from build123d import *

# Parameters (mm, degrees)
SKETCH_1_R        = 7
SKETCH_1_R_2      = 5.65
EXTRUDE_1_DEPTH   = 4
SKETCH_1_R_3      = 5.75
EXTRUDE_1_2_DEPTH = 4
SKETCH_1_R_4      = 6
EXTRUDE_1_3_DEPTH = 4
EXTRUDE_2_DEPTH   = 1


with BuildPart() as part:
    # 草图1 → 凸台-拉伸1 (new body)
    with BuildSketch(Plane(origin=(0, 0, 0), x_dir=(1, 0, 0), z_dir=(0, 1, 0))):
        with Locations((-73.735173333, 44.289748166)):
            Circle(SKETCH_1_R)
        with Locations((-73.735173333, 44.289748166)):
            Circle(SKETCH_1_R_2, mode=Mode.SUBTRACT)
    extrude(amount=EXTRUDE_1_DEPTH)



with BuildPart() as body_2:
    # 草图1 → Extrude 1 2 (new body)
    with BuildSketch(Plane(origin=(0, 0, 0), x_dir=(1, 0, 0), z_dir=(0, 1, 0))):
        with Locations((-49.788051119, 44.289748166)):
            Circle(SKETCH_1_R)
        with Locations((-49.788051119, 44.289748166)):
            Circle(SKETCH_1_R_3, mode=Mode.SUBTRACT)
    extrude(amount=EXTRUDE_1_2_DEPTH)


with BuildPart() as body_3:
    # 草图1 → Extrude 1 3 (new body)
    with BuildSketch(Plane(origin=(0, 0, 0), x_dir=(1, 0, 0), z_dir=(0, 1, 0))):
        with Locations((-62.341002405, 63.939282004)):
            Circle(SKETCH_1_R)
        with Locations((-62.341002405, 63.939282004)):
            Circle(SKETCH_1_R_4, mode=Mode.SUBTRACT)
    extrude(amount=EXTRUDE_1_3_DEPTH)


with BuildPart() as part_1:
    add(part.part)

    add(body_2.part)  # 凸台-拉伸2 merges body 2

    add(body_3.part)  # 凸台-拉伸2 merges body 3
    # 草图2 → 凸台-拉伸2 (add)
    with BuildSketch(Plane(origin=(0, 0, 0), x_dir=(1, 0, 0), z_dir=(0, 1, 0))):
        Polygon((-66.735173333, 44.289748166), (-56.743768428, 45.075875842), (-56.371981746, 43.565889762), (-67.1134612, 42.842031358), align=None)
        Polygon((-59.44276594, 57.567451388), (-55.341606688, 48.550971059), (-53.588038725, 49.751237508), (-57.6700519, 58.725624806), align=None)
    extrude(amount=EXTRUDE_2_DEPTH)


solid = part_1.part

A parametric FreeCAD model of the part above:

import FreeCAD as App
import Part
import Sketcher

V = App.Vector

doc = App.newDocument("Part")
body = doc.addObject("PartDesign::Body", "Body")

sketch1 = body.newObject("Sketcher::SketchObject", "Sketch")
sketch1.AttachmentSupport = (doc.getObject("XZ_Plane"), [""])
sketch1.MapMode = "FlatFace"
sketch1.addGeometry([
    Part.Circle(V(-73.735173, -44.289748, 0), V(0, 0, 1), 7),
    Part.Circle(V(-73.735173, -44.289748, 0), V(0, 0, 1), 5.65),
], False)
sketch1.addConstraint([
    Sketcher.Constraint("Coincident", 1, 3, 0, 3),
    Sketcher.Constraint("Diameter", 0, 14.0),
    Sketcher.Constraint("Diameter", 1, 11.3),
    Sketcher.Constraint("DistanceY", 0, 3, -1, 1, 44.289748),
    Sketcher.Constraint("DistanceX", 0, 3, -1, 1, 73.735173),
])
pad1 = body.newObject("PartDesign::Pad", "Pad")
pad1.Profile = sketch1
pad1.Length = 4
pad1.Reversed = True
body2 = doc.addObject("PartDesign::Body", "Body001")

sketch2 = body2.newObject("Sketcher::SketchObject", "Sketch001")
sketch2.AttachmentSupport = (doc.getObject("XZ_Plane001"), [""])
sketch2.MapMode = "FlatFace"
sketch2.addGeometry([
    Part.Circle(V(-49.788051, -44.289748, 0), V(0, 0, 1), 7),
    Part.Circle(V(-49.788051, -44.289748, 0), V(0, 0, 1), 5.75),
], False)
sketch2.addConstraint([
    Sketcher.Constraint("Coincident", 1, 3, 0, 3),
    Sketcher.Constraint("Diameter", 0, 14.0),
    Sketcher.Constraint("Diameter", 1, 11.5),
    Sketcher.Constraint("DistanceX", 0, 3, -1, 1, 49.788051),
    Sketcher.Constraint("DistanceY", 0, 3, -1, 1, 44.289748),
])
pad2 = body2.newObject("PartDesign::Pad", "Pad001")
pad2.Profile = sketch2
pad2.Length = 4
pad2.Reversed = True
body3 = doc.addObject("PartDesign::Body", "Body002")

sketch3 = body3.newObject("Sketcher::SketchObject", "Sketch002")
sketch3.AttachmentSupport = (doc.getObject("XZ_Plane002"), [""])
sketch3.MapMode = "FlatFace"
sketch3.addGeometry([
    Part.Circle(V(-62.341002, -63.939282, 0), V(0, 0, 1), 7),
    Part.Circle(V(-62.341002, -63.939282, 0), V(0, 0, 1), 6),
], False)
sketch3.addConstraint([
    Sketcher.Constraint("Coincident", 1, 3, 0, 3),
    Sketcher.Constraint("Diameter", 0, 14.0),
    Sketcher.Constraint("Diameter", 1, 12.0),
    Sketcher.Constraint("DistanceX", 0, 3, -1, 1, 62.341002),
    Sketcher.Constraint("DistanceY", 0, 3, -1, 1, 63.939282),
])
pad3 = body3.newObject("PartDesign::Pad", "Pad002")
pad3.Profile = sketch3
pad3.Length = 4
pad3.Reversed = True
body.AllowCompound = True
doc.recompute()

boolean = body.newObject("PartDesign::Boolean", "Boolean")
boolean.Type = "Fuse"
boolean.addObjects([body2])
doc.recompute()

boolean2 = body.newObject("PartDesign::Boolean", "Boolean001")
boolean2.Type = "Fuse"
boolean2.addObjects([body3])

sketch4 = body.newObject("Sketcher::SketchObject", "Sketch003")
sketch4.AttachmentSupport = (doc.getObject("XZ_Plane"), [""])
sketch4.MapMode = "FlatFace"
sketch4.addGeometry([
    Part.LineSegment(V(-56.743768, -45.075876, 0), V(-66.735173, -44.289748, 0)),
    Part.LineSegment(V(-66.735173, -44.289748, 0), V(-67.113461, -42.842031, 0)),
    Part.LineSegment(V(-67.113461, -42.842031, 0), V(-56.371982, -43.56589, 0)),
    Part.LineSegment(V(-56.371982, -43.56589, 0), V(-56.743768, -45.075876, 0)),
    Part.LineSegment(V(-59.442766, -57.567451, 0), V(-55.341607, -48.550971, 0)),
    Part.LineSegment(V(-55.341607, -48.550971, 0), V(-53.588039, -49.751238, 0)),
    Part.LineSegment(V(-53.588039, -49.751238, 0), V(-57.670052, -58.725625, 0)),
    Part.LineSegment(V(-57.670052, -58.725625, 0), V(-59.442766, -57.567451, 0)),
], False)
sketch4.addConstraint([
    Sketcher.Constraint("Coincident", 0, 2, 1, 1),
    Sketcher.Constraint("Coincident", 1, 2, 2, 1),
    Sketcher.Constraint("Coincident", 2, 2, 3, 1),
    Sketcher.Constraint("Coincident", 3, 2, 0, 1),
    Sketcher.Constraint("Coincident", 4, 2, 5, 1),
    Sketcher.Constraint("Coincident", 5, 2, 6, 1),
    Sketcher.Constraint("Coincident", 6, 2, 7, 1),
    Sketcher.Constraint("Coincident", 7, 2, 4, 1),
    Sketcher.Constraint("Parallel", 4, 6),
    Sketcher.Constraint("Distance", 2, 10.765842),
    Sketcher.Constraint("Distance", 6, 9.859131),
    Sketcher.Constraint("DistanceY", 0, 2, -1, 1, 44.289748),
    Sketcher.Constraint("DistanceX", 1, 2, -1, 1, 67.113461),
    Sketcher.Constraint("DistanceY", 1, 2, -1, 1, 42.842031),
    Sketcher.Constraint("DistanceX", 2, 2, -1, 1, 56.371982),
    Sketcher.Constraint("DistanceX", 3, 2, -1, 1, 56.743768),
    Sketcher.Constraint("DistanceY", 4, 2, -1, 1, 48.550971),
    Sketcher.Constraint("DistanceX", 5, 2, -1, 1, 53.588039),
    Sketcher.Constraint("DistanceX", 6, 2, -1, 1, 57.670052),
    Sketcher.Constraint("DistanceY", 7, 2, -1, 1, 57.567451),
    Sketcher.Constraint("DistanceX", 0, 2, 2, 2, 10.363192),
    Sketcher.Constraint("DistanceX", 3, 2, 4, 2, 1.402162),
    Sketcher.Constraint("DistanceY", 5, 2, 3, 2, 4.675362),
    Sketcher.Constraint("DistanceY", 5, 2, 0, 2, 5.461489),
])
pad4 = body.newObject("PartDesign::Pad", "Pad003")
pad4.Profile = sketch4
pad4.Length = 1
pad4.Reversed = True

doc.recompute()
